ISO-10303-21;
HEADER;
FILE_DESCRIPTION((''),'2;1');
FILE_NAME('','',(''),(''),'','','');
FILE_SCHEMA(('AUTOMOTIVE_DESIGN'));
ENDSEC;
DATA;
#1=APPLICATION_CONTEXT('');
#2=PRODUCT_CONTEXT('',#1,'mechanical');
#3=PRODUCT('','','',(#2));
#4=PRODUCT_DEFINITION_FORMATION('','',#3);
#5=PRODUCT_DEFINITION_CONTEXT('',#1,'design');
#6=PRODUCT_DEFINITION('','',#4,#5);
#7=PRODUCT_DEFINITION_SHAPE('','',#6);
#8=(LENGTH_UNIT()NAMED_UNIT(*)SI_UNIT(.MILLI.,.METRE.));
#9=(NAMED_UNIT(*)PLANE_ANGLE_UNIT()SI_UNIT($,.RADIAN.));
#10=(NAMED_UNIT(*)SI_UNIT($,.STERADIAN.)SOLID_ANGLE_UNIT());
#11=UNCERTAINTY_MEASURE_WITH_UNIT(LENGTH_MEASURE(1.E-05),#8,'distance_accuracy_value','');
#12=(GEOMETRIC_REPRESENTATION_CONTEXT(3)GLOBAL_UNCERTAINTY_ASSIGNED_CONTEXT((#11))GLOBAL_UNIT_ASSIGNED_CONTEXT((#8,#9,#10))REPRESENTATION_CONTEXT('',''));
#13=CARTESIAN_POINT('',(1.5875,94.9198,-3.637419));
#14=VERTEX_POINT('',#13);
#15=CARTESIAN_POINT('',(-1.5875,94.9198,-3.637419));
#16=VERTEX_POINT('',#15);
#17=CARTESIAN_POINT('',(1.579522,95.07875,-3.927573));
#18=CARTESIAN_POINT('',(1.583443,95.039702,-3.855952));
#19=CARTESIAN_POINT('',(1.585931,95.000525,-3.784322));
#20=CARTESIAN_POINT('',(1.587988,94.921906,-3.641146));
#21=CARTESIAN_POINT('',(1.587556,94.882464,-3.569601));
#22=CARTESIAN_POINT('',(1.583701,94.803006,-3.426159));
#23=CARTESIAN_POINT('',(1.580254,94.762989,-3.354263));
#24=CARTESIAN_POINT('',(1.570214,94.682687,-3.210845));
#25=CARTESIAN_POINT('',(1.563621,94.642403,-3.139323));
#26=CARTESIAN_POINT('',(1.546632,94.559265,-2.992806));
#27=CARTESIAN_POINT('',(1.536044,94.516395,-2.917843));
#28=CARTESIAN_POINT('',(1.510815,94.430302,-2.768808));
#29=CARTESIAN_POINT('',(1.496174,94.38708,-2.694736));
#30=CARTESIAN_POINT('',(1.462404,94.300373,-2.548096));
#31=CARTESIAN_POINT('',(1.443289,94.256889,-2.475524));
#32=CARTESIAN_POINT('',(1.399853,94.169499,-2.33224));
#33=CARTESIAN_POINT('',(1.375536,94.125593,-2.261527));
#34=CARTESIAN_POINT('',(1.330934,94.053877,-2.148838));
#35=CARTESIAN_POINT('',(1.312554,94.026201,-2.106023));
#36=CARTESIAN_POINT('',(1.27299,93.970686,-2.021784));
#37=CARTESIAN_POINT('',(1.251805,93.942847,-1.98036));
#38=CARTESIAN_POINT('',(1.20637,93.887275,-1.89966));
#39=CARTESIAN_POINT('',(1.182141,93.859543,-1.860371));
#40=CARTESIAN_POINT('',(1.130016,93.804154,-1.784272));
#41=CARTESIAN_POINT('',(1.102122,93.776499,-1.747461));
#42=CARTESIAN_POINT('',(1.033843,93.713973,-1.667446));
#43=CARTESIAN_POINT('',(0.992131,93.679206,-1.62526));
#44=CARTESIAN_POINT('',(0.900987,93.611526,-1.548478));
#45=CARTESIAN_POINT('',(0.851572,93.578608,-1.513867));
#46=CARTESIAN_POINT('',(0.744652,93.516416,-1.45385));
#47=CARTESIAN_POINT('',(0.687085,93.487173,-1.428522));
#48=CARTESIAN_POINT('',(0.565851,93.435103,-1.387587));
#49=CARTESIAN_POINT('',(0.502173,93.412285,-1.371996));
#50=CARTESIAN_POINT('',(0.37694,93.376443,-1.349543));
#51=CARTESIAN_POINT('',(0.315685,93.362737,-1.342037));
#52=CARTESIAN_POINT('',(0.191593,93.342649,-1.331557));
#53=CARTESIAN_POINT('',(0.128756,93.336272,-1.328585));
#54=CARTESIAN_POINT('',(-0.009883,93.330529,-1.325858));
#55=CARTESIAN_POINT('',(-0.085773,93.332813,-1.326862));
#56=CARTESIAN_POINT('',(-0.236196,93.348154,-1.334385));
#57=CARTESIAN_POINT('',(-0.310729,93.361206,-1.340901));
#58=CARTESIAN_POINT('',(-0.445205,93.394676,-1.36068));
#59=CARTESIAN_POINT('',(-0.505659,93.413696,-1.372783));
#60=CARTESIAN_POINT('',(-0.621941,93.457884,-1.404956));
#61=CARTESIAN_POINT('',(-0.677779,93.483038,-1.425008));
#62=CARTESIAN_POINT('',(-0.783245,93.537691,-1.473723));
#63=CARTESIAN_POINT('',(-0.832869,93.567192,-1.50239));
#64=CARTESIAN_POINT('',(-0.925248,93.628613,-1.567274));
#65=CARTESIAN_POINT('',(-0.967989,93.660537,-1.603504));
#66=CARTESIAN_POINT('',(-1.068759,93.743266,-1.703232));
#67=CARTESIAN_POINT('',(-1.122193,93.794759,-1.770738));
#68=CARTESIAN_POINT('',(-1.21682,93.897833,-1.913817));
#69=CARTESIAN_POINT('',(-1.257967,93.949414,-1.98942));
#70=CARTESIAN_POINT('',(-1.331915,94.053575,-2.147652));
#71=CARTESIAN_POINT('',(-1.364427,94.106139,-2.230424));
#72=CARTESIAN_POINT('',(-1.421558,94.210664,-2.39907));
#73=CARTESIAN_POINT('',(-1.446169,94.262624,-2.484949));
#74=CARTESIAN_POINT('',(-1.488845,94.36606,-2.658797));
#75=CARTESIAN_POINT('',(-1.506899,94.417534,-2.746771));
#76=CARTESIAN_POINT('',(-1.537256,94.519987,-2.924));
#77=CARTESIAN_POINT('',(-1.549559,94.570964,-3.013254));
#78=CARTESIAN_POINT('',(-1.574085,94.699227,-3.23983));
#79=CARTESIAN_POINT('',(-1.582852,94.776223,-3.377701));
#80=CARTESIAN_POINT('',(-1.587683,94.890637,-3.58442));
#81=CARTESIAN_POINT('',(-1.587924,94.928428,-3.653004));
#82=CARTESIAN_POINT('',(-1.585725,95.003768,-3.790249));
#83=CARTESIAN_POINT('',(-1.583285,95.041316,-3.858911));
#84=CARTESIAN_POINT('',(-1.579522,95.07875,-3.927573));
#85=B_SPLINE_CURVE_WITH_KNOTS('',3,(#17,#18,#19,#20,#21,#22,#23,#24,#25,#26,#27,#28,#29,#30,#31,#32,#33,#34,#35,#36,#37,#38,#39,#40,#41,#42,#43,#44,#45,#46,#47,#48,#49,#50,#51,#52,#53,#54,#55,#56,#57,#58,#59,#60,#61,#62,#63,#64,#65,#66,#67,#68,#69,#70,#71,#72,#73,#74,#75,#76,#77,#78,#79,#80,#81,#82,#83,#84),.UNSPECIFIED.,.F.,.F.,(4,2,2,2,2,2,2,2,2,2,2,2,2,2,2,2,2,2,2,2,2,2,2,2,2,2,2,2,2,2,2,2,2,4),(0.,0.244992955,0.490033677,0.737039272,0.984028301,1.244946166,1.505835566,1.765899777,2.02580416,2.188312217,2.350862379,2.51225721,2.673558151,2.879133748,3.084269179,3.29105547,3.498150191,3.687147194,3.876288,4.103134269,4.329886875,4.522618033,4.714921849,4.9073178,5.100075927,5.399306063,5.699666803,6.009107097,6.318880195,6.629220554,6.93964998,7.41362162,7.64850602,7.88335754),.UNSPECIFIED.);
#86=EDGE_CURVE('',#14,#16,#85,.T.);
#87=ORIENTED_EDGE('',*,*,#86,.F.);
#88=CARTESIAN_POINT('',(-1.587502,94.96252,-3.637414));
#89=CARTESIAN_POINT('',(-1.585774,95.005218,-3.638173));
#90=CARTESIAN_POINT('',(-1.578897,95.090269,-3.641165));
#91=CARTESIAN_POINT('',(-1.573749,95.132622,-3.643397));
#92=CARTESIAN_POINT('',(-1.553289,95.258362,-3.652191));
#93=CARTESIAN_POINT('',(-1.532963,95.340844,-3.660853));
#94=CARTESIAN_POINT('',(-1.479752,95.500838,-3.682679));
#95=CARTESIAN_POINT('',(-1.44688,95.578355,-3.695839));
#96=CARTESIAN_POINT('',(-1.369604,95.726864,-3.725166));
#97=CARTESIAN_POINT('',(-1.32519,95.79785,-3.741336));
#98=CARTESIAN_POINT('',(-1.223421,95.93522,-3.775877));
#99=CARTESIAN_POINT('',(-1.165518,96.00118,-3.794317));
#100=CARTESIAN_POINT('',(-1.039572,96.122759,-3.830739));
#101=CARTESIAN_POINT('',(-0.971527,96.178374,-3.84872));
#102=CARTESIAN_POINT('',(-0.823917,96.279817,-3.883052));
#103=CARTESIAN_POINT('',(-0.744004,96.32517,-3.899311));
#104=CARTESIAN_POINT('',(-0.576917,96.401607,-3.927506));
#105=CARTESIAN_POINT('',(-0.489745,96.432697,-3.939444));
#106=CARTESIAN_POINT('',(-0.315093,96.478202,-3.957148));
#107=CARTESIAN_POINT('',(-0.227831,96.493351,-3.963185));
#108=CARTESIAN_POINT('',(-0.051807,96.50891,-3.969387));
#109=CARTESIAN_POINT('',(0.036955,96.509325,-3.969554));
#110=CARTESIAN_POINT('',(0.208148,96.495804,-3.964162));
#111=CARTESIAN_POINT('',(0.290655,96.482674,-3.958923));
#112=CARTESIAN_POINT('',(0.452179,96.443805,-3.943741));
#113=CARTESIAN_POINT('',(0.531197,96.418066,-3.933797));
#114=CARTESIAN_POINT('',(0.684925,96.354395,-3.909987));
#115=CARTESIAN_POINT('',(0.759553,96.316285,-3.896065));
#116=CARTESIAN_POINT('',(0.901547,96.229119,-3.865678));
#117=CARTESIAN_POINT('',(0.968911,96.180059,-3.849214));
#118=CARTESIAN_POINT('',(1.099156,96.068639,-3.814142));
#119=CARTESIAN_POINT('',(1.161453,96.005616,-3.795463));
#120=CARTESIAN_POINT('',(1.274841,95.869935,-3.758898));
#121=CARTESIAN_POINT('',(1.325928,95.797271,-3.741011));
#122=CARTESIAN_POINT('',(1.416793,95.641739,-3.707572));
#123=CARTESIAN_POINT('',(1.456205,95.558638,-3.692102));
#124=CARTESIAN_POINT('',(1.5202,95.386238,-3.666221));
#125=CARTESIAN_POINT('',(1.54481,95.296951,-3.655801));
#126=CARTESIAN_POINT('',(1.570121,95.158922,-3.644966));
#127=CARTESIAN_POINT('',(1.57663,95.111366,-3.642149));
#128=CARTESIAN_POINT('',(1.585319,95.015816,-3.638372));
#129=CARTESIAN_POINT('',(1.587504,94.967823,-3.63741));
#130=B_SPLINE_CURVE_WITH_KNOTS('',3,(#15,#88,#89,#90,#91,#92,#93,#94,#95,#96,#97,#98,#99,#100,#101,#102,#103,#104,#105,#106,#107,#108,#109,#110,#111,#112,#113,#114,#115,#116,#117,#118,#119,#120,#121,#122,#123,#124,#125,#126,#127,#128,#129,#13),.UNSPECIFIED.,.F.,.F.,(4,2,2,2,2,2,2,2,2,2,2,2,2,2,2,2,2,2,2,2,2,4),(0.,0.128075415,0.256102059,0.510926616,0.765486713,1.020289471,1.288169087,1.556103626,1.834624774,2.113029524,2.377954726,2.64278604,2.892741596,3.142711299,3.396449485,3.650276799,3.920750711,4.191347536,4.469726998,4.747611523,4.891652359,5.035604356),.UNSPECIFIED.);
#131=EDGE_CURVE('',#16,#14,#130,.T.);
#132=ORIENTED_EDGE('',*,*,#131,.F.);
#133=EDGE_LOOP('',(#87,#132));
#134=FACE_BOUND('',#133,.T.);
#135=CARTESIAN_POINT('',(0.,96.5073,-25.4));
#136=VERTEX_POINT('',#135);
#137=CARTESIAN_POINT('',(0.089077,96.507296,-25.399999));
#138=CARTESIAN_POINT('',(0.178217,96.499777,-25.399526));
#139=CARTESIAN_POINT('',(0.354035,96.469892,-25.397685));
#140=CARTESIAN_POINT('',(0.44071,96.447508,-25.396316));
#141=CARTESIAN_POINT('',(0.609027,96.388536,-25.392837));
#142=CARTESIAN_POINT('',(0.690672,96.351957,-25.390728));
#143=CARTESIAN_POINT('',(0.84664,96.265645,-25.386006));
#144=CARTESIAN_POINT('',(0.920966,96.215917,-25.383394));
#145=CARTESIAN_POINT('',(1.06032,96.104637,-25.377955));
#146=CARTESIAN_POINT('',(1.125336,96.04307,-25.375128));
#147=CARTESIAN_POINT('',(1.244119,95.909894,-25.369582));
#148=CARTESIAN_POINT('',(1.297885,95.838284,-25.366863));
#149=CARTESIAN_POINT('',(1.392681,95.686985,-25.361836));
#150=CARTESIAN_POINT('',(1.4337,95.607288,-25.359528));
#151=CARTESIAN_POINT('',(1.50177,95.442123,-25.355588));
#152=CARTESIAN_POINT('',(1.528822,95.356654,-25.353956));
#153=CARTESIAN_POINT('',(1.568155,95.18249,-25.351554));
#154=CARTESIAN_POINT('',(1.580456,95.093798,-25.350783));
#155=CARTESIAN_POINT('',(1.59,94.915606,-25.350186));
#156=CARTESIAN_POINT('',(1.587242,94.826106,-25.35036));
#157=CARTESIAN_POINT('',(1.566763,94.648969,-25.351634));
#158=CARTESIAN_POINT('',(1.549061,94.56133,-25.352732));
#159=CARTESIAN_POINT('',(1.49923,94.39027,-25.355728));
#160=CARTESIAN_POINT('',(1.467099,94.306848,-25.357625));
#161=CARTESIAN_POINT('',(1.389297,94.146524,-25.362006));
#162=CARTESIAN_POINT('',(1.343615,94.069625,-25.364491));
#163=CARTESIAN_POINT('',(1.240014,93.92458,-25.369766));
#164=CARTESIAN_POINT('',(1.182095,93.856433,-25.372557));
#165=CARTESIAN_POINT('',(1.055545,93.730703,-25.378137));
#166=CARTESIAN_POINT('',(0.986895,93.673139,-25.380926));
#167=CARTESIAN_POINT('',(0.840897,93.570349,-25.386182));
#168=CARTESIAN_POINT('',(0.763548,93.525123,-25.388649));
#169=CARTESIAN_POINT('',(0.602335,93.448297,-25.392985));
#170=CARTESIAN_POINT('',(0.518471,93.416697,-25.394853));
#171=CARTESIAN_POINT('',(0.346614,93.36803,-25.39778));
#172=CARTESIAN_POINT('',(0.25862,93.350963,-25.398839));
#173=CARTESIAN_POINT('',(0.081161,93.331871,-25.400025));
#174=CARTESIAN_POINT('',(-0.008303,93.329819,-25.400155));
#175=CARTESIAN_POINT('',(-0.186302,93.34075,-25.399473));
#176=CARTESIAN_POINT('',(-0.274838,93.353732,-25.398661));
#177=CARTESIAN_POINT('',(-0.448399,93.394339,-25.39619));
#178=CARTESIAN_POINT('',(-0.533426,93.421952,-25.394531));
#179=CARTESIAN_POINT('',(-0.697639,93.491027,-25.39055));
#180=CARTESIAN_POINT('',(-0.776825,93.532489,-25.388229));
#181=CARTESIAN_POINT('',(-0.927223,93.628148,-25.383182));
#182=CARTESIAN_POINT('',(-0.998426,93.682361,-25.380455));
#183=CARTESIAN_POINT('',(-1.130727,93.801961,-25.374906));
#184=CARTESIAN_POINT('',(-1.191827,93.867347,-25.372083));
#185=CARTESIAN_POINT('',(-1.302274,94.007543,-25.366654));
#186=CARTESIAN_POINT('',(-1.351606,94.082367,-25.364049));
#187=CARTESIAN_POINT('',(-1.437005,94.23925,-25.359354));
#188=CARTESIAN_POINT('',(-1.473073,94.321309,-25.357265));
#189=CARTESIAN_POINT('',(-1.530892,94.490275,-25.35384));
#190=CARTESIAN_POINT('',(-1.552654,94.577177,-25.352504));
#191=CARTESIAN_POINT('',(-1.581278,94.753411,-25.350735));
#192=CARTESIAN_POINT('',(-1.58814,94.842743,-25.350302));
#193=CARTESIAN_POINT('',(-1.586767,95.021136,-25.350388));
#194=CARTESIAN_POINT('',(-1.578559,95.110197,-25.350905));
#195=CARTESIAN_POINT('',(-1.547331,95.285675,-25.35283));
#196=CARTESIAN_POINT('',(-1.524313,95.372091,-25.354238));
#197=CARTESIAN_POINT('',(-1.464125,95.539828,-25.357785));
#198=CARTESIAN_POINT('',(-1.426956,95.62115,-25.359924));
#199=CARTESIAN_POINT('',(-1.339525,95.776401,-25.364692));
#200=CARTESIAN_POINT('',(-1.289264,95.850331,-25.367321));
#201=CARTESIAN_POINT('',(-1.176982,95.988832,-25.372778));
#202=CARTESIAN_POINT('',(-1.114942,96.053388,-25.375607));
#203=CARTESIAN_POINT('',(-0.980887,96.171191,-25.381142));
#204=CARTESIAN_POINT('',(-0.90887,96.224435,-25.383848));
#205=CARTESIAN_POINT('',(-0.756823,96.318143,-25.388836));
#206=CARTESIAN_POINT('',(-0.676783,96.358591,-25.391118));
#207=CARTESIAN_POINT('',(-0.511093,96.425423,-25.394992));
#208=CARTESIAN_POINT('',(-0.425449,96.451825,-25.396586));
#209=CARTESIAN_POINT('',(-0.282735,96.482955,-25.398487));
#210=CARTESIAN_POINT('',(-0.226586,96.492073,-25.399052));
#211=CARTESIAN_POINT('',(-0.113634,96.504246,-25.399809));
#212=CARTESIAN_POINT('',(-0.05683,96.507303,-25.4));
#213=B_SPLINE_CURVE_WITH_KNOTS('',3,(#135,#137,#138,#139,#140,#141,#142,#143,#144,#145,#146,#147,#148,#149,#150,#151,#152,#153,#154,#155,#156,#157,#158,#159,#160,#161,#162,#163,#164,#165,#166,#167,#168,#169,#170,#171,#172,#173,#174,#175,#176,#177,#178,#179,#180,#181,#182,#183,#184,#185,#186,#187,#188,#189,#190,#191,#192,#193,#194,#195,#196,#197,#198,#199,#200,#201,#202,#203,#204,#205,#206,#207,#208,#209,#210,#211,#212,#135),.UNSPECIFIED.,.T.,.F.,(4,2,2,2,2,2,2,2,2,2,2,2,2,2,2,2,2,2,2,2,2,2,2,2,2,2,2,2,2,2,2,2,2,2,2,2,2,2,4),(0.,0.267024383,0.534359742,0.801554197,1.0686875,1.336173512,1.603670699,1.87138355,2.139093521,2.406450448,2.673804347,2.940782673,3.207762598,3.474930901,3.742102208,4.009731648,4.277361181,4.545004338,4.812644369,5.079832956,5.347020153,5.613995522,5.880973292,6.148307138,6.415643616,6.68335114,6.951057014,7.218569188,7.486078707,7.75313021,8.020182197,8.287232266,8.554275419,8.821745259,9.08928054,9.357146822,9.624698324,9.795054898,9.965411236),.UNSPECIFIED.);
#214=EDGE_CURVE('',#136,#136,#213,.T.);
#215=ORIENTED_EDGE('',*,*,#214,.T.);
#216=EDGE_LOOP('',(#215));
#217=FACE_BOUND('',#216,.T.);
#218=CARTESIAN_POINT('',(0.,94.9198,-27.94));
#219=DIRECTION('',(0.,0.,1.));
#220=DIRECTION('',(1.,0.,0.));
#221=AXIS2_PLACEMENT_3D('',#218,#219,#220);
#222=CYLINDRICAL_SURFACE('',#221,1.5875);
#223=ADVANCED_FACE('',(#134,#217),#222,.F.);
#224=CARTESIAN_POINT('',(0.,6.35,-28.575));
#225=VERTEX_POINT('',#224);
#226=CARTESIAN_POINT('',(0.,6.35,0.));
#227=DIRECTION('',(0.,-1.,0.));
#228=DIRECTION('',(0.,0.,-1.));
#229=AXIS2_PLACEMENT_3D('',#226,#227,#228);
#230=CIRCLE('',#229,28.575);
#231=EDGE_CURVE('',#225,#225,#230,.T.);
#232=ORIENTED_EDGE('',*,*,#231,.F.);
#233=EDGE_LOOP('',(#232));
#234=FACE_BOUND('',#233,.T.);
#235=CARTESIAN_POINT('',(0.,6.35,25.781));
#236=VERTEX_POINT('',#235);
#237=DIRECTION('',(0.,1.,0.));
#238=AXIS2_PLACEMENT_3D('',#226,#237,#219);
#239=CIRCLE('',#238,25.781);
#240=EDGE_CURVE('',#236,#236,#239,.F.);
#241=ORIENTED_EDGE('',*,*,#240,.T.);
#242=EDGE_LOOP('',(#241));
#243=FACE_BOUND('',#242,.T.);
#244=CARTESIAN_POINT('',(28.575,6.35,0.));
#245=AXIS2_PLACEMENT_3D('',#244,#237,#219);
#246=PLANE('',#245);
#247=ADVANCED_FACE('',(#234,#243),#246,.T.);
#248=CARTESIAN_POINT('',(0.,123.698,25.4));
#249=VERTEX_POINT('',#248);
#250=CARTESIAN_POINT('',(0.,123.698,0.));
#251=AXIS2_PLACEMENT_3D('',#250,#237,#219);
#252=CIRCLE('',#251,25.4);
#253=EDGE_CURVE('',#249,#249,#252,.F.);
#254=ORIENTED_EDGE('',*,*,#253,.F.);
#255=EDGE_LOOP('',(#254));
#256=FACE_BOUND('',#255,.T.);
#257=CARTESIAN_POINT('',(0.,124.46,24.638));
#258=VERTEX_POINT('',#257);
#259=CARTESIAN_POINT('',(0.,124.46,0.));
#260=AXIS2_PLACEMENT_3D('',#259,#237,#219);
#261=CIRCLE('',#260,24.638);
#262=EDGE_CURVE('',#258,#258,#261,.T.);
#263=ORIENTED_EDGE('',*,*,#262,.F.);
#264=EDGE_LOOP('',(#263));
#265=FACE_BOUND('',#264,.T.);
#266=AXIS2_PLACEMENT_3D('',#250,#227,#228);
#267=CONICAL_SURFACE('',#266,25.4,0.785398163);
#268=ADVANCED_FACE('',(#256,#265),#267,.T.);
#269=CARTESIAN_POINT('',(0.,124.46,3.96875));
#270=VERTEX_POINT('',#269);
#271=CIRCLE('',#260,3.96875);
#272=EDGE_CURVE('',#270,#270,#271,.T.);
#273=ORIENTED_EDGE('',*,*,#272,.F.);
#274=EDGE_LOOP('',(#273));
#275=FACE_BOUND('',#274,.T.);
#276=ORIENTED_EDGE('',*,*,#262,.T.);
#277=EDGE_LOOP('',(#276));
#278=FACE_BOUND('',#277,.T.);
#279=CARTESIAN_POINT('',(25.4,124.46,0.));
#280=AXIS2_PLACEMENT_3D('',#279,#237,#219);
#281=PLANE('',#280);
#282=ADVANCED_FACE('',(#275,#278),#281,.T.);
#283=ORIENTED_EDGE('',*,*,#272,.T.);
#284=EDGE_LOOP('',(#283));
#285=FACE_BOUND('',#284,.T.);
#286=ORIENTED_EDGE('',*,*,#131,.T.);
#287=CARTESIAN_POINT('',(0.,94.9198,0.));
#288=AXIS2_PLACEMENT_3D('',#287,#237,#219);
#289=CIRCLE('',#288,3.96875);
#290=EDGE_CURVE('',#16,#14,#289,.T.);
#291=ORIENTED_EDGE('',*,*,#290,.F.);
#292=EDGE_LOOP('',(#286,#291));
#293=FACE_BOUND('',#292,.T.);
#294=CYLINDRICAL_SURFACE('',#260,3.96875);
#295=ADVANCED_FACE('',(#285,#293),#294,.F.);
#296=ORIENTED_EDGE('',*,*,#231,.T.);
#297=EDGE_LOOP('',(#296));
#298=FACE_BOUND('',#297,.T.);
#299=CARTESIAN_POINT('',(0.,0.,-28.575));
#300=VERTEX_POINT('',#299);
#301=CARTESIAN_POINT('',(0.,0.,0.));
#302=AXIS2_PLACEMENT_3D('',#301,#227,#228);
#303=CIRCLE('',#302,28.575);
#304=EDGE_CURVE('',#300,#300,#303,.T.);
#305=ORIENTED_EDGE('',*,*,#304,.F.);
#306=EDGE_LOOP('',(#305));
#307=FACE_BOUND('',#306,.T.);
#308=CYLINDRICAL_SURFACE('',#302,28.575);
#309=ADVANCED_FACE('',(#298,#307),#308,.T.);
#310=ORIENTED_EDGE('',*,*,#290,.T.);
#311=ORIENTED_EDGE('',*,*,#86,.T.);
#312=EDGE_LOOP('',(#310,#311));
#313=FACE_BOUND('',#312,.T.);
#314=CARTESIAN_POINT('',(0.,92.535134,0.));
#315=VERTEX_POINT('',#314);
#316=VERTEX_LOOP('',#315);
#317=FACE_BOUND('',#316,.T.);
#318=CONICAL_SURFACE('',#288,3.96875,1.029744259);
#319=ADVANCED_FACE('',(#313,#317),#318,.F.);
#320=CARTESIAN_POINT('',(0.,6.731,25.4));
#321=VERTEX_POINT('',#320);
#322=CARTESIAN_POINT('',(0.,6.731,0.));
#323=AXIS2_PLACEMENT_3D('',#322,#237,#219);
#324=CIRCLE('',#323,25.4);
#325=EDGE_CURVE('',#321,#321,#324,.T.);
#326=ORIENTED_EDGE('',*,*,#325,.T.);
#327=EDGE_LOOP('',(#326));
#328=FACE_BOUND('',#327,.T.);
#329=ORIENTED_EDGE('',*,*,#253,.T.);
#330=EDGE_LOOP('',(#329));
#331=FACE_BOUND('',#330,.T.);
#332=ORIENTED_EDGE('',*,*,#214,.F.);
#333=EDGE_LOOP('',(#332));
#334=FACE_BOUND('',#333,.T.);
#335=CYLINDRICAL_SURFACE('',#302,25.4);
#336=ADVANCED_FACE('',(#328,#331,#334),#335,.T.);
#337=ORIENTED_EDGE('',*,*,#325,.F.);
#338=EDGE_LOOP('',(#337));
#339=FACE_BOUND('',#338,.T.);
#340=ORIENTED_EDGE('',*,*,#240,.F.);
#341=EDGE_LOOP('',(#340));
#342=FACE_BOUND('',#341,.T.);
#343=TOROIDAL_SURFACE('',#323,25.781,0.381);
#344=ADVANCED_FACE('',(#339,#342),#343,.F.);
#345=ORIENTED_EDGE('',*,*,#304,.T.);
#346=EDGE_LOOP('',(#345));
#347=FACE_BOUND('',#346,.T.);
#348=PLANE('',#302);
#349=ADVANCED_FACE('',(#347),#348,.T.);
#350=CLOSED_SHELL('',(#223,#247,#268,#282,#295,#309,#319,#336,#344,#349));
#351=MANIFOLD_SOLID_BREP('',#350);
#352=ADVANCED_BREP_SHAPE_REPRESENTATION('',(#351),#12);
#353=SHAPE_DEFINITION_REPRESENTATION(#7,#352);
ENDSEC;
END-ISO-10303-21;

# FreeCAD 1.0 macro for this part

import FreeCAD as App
import Part
import Sketcher

V = App.Vector
Q = App.Units.Quantity


def edges_at(feature, points):
    """Names of the edges that pass closest to the given points."""
    edges = feature.Shape.Edges
    near = lambda p: min(range(len(edges)), key=lambda i: edges[i].distToShape(Part.Vertex(*p))[0])
    return sorted({f"Edge{near(p) + 1}" for p in points})

doc = App.newDocument("Part")
body = doc.addObject("PartDesign::Body", "Body")

sketch1 = body.newObject("Sketcher::SketchObject", "Sketch")
sketch1.AttachmentSupport = (doc.getObject("XY_Plane"), [""])
sketch1.MapMode = "FlatFace"
sketch1.addGeometry([
    Part.LineSegment(V(0, 0, 0), V(28.575, 0, 0)),
    Part.LineSegment(V(28.575, 0, 0), V(28.575, 6.35, 0)),
    Part.LineSegment(V(28.575, 6.35, 0), V(25.4, 6.35, 0)),
    Part.LineSegment(V(25.4, 6.35, 0), V(25.4, 124.46, 0)),
    Part.LineSegment(V(25.4, 124.46, 0), V(0, 124.46, 0)),
    Part.LineSegment(V(0, 124.46, 0), V(0, 0, 0)),
], False)
sketch1.addConstraint([
    Sketcher.Constraint("Coincident", 0, 2, 1, 1),
    Sketcher.Constraint("Coincident", 1, 2, 2, 1),
    Sketcher.Constraint("Coincident", 2, 2, 3, 1),
    Sketcher.Constraint("Coincident", 3, 2, 4, 1),
    Sketcher.Constraint("Coincident", 4, 2, 5, 1),
    Sketcher.Constraint("Coincident", 5, 2, 0, 1),
    Sketcher.Constraint("Horizontal", 0),
    Sketcher.Constraint("Vertical", 1),
    Sketcher.Constraint("Horizontal", 2),
    Sketcher.Constraint("Vertical", 3),
    Sketcher.Constraint("Horizontal", 4),
    Sketcher.Constraint("Vertical", 5),
    Sketcher.Constraint("Coincident", 5, 2, -1, 1),
    Sketcher.Constraint("DistanceX", 4, 2, 4, 1, Q("1 in")),
    Sketcher.Constraint("DistanceY", 5, 2, 5, 1, Q("4.9 in")),
    Sketcher.Constraint("DistanceY", 1, 1, 1, 2, Q("0.25 in")),
    Sketcher.Constraint("DistanceX", 0, 1, 0, 2, Q("1.125 in")),
])
revolution = body.newObject("PartDesign::Revolution", "Revolution")
revolution.Profile = sketch1
revolution.ReferenceAxis = (sketch1, ["V_Axis"])
revolution.Angle = 360

sketch2 = body.newObject("Sketcher::SketchObject", "Sketch001")
sketch2.AttachmentSupport = (doc.getObject("XZ_Plane"), [""])
sketch2.MapMode = "FlatFace"
sketch2.AttachmentOffset = App.Placement(V(0, 0, -4.9 * 25.4), App.Rotation())
sketch2.addGeometry(Part.Circle(V(0, 0, 0), V(0, 0, 1), 3.96875), False)
sketch2.addConstraint([
    Sketcher.Constraint("Coincident", 0, 3, -1, 1),
    Sketcher.Constraint("Diameter", 0, Q("0.3125 in")),
])
doc.recompute()
hole = body.newObject("PartDesign::Hole", "Hole")
hole.Profile = sketch2
hole.ThreadType = "None"
hole.Diameter = Q("0.3125 in")
hole.DepthType = "Dimension"
hole.Depth = Q("1.163 in")
hole.DrillPoint = "Angled"
hole.DrillPointAngle = 118
hole.Reversed = True
doc.recompute()

chamfer = body.newObject("PartDesign::Chamfer", "Chamfer")
chamfer.Base = (hole, edges_at(hole, [(0, 124.46, 25.4)]))
chamfer.Size = Q("0.03 in")
doc.recompute()

fillet = body.newObject("PartDesign::Fillet", "Fillet")
fillet.Base = (chamfer, edges_at(chamfer, [(0, 6.35, 25.4)]))
fillet.Radius = Q("0.015 in")

sketch3 = body.newObject("Sketcher::SketchObject", "Sketch002")
sketch3.AttachmentSupport = (doc.getObject("XY_Plane"), [""])
sketch3.MapMode = "FlatFace"
sketch3.addGeometry(Part.Circle(V(0, 94.9198, 0), V(0, 0, 1), 1.5875), False)
sketch3.addConstraint([
    Sketcher.Constraint("PointOnObject", 0, 3, -2),
    Sketcher.Constraint("Diameter", 0, Q("0.125 in")),
    Sketcher.Constraint("DistanceY", -1, 1, 0, 3, Q("3.737 in")),
])
pocket1 = body.newObject("PartDesign::Pocket", "Pocket")
pocket1.Profile = sketch3
pocket1.Length = Q("1.1 in")

doc.recompute()
